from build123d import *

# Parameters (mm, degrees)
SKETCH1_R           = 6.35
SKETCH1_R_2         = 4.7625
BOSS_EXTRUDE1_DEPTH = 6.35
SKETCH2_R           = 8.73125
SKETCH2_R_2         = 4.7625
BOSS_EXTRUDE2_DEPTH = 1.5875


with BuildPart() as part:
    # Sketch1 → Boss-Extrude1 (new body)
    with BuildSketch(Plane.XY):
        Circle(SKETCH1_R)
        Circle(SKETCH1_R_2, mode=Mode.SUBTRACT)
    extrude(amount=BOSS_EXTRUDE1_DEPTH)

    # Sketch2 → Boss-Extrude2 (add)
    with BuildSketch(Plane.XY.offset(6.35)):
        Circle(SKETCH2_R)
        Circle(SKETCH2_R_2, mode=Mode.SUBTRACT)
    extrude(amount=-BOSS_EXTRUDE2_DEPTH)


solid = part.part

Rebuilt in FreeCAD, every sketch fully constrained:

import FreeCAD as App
import Part
import Sketcher
Q = App.Units.Quantity

doc = App.newDocument("Part")
body = doc.addObject("PartDesign::Body", "Body")

# Sketch on XY plane
sketch1 = body.newObject("Sketcher::SketchObject", "Sketch")
sketch1.AttachmentSupport = (doc.getObject("XY_Plane"), [""])
sketch1.MapMode = "FlatFace"
sketch1.addGeometry(Part.Circle(App.Vector(0, 0, 0), App.Vector(0, 0, 1), 6.35), False)
sketch1.addGeometry(Part.Circle(App.Vector(0, 0, 0), App.Vector(0, 0, 1), 4.7625), False)
sketch1.addConstraint(Sketcher.Constraint("Coincident", 0, 3, -1, 1))
sketch1.addConstraint(Sketcher.Constraint("Coincident", 1, 3, -1, 1))
sketch1.addConstraint(Sketcher.Constraint("Diameter", 0, Q("0.5 in")))
sketch1.addConstraint(Sketcher.Constraint("Diameter", 1, Q("0.375 in")))
pad1 = body.newObject("PartDesign::Pad", "Pad")
pad1.Profile = sketch1
pad1.Length = Q("0.25 in")

# Sketch on XY plane
sketch2 = body.newObject("Sketcher::SketchObject", "Sketch001")
sketch2.AttachmentSupport = (doc.getObject("XY_Plane"), [""])
sketch2.MapMode = "FlatFace"
sketch2.AttachmentOffset = App.Placement(App.Vector(0, 0, 0.25 * 25.4), App.Rotation())
sketch2.addGeometry(Part.Circle(App.Vector(0, 0, 0), App.Vector(0, 0, 1), 8.73125), False)
sketch2.addGeometry(Part.Circle(App.Vector(0, 0, 0), App.Vector(0, 0, 1), 4.7625), False)
sketch2.addConstraint(Sketcher.Constraint("Coincident", 0, 3, -1, 1))
sketch2.addConstraint(Sketcher.Constraint("Coincident", 1, 3, -1, 1))
sketch2.addConstraint(Sketcher.Constraint("Diameter", 0, Q("0.6875 in")))
sketch2.addConstraint(Sketcher.Constraint("Diameter", 1, Q("0.375 in")))
pad2 = body.newObject("PartDesign::Pad", "Pad001")
pad2.Profile = sketch2
pad2.Length = Q("0.0625 in")
pad2.Reversed = True

doc.recompute()
